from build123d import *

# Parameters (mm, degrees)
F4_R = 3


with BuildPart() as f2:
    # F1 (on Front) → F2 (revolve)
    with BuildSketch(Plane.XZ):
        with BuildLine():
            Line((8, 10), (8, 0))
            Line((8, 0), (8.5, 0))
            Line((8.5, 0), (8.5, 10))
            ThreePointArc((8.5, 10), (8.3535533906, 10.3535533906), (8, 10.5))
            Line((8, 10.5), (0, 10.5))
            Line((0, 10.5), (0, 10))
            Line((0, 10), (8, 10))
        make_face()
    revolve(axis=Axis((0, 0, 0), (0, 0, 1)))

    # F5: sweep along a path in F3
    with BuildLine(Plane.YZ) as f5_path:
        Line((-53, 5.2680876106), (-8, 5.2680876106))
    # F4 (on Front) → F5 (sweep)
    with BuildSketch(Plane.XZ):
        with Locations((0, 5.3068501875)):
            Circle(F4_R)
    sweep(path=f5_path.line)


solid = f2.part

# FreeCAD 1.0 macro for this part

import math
import FreeCAD as App
import Part
import Sketcher

V = App.Vector

doc = App.newDocument("Part")
body = doc.addObject("PartDesign::Body", "Body")

sketch1 = body.newObject("Sketcher::SketchObject", "Sketch")
sketch1.AttachmentSupport = (doc.getObject("XZ_Plane"), [""])
sketch1.MapMode = "FlatFace"
sketch1.addGeometry([
    Part.LineSegment(V(8, 10, 0), V(8, 0, 0)),
    Part.LineSegment(V(8, 0, 0), V(8.5, 0, 0)),
    Part.LineSegment(V(8.5, 0, 0), V(8.5, 10, 0)),
    Part.ArcOfCircle(Part.Circle(V(8, 10, 0), V(0, 0, 1), 0.5), math.radians(0), math.radians(90)),
    Part.LineSegment(V(8, 10.5, 0), V(0, 10.5, 0)),
    Part.LineSegment(V(0, 10.5, 0), V(0, 10, 0)),
    Part.LineSegment(V(0, 10, 0), V(8, 10, 0)),
], False)
sketch1.addConstraint([
    Sketcher.Constraint("Coincident", 0, 2, 1, 1),
    Sketcher.Constraint("Coincident", 1, 2, 2, 1),
    Sketcher.Constraint("Tangent", 2, 2, 3, 1),
    Sketcher.Constraint("Tangent", 3, 2, 4, 1),
    Sketcher.Constraint("Coincident", 4, 2, 5, 1),
    Sketcher.Constraint("Coincident", 5, 2, 6, 1),
    Sketcher.Constraint("Coincident", 6, 2, 0, 1),
    Sketcher.Constraint("Vertical", 0),
    Sketcher.Constraint("Horizontal", 1),
    Sketcher.Constraint("Vertical", 2),
    Sketcher.Constraint("Horizontal", 4),
    Sketcher.Constraint("Vertical", 5),
    Sketcher.Constraint("Horizontal", 6),
    Sketcher.Constraint("Coincident", 6, 2, 3, 3),
    Sketcher.Constraint("PointOnObject", 0, 2, -1),
    Sketcher.Constraint("PointOnObject", 4, 2, -2),
    Sketcher.Constraint("Radius", 3, 0.5),
    Sketcher.Constraint("DistanceX", 4, 2, 4, 1, 8.0),
    Sketcher.Constraint("DistanceY", 0, 2, 0, 1, 10.0),
])
revolution = body.newObject("PartDesign::Revolution", "Revolution")
revolution.Profile = sketch1
revolution.ReferenceAxis = (sketch1, ["V_Axis"])
revolution.Angle = 360

sketch2 = body.newObject("Sketcher::SketchObject", "Sketch001")
sketch2.AttachmentSupport = (doc.getObject("XZ_Plane"), [""])
sketch2.MapMode = "FlatFace"
sketch2.addGeometry(Part.Circle(V(0, 5.3, 0), V(0, 0, 1), 3), False)
sketch2.addConstraint([
    Sketcher.Constraint("PointOnObject", 0, 3, -2),
    Sketcher.Constraint("Diameter", 0, 6.0),
    Sketcher.Constraint("DistanceY", -1, 1, 0, 3, 5.30685),
])

sketch3 = body.newObject("Sketcher::SketchObject", "Sketch002")
sketch3.AttachmentSupport = (doc.getObject("XY_Plane"), [""])
sketch3.MapMode = "FlatFace"
sketch3.AttachmentOffset = App.Placement(V(0, 0, 5.268088), App.Rotation())
sketch3.addGeometry(Part.LineSegment(V(0, -53, 0), V(0, -8, 0)), False)
sketch3.addConstraint([
    Sketcher.Constraint("Vertical", 0),
    Sketcher.Constraint("PointOnObject", 0, 1, -2),
    Sketcher.Constraint("DistanceY", 0, 1, 0, 2, 45.0),
    Sketcher.Constraint("DistanceY", 0, 1, -1, 1, 53.0),
])
doc.recompute()

additivepipe = body.newObject("PartDesign::AdditivePipe", "AdditivePipe")
additivepipe.Profile = sketch2
additivepipe.Spine = (sketch3, ["Edge1"])

doc.recompute()
